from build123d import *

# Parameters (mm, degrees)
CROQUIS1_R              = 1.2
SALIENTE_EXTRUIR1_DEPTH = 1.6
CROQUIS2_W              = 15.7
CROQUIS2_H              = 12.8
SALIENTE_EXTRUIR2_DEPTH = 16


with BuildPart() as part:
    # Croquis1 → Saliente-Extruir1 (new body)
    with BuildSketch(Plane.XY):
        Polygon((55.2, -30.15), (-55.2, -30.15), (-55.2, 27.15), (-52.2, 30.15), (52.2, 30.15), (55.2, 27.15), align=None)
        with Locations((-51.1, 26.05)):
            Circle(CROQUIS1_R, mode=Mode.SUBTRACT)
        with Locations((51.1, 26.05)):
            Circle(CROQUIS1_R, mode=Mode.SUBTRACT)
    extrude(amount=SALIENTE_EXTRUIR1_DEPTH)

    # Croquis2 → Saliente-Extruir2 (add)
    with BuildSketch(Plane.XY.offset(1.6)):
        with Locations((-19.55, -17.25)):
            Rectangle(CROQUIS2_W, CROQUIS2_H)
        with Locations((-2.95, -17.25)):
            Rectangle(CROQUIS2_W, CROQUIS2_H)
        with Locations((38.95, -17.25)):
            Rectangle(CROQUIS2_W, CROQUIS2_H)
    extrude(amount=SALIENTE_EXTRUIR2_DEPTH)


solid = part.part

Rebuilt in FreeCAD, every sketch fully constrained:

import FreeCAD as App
import Part
import Sketcher

doc = App.newDocument("Part")
params = doc.addObject("Spreadsheet::Sheet", "Params")
for row, (alias, value) in enumerate([
    ("sketch1_diameter", "2.4 mm"),
    ("sketch1_width", "110.4 mm"),
    ("sketch1_width2", "104.4 mm"),
    ("sketch1_height", "57.3 mm"),
    ("pad1_length", "1.6 mm"),
    ("sketch2_width", "15.7 mm"),
    ("sketch2_height", "12.8 mm"),
    ("pad2_length", "16 mm"),
], start=1):
    params.set(f"A{row}", alias)
    params.set(f"B{row}", "=" + value)
    params.setAlias(f"B{row}", alias)

body = doc.addObject("PartDesign::Body", "Body")

# Sketch on XY plane
sketch1 = body.newObject("Sketcher::SketchObject", "Sketch")
sketch1.AttachmentSupport = (doc.getObject("XY_Plane"), [""])
sketch1.MapMode = "FlatFace"
sketch1.addGeometry(Part.LineSegment(App.Vector(-55.2, -30.1, 0), App.Vector(55.2, -30.1, 0)), False)
sketch1.addGeometry(Part.LineSegment(App.Vector(55.2, -30.1, 0), App.Vector(55.2, 27.1, 0)), False)
sketch1.addGeometry(Part.LineSegment(App.Vector(55.2, 27.1, 0), App.Vector(52.2, 30.1, 0)), False)
sketch1.addGeometry(Part.LineSegment(App.Vector(52.2, 30.1, 0), App.Vector(-52.2, 30.1, 0)), False)
sketch1.addGeometry(Part.LineSegment(App.Vector(-52.2, 30.1, 0), App.Vector(-55.2, 27.1, 0)), False)
sketch1.addGeometry(Part.LineSegment(App.Vector(-55.2, 27.1, 0), App.Vector(-55.2, -30.1, 0)), False)
sketch1.addGeometry(Part.Circle(App.Vector(51.1, 26.1, 0), App.Vector(0, 0, 1), 1.2), False)
sketch1.addGeometry(Part.Circle(App.Vector(-51.1, 26.1, 0), App.Vector(0, 0, 1), 1.2), False)
sketch1.addConstraint(Sketcher.Constraint("Coincident", 0, 2, 1, 1))
sketch1.addConstraint(Sketcher.Constraint("Coincident", 1, 2, 2, 1))
sketch1.addConstraint(Sketcher.Constraint("Coincident", 2, 2, 3, 1))
sketch1.addConstraint(Sketcher.Constraint("Coincident", 3, 2, 4, 1))
sketch1.addConstraint(Sketcher.Constraint("Coincident", 4, 2, 5, 1))
sketch1.addConstraint(Sketcher.Constraint("Coincident", 5, 2, 0, 1))
sketch1.addConstraint(Sketcher.Constraint("Horizontal", 0))
sketch1.addConstraint(Sketcher.Constraint("Vertical", 1))
sketch1.addConstraint(Sketcher.Constraint("Horizontal", 3))
sketch1.addConstraint(Sketcher.Constraint("Vertical", 5))
sketch1.addConstraint(Sketcher.Constraint("Equal", 6, 7))
sketch1.addConstraint(Sketcher.Constraint("Symmetric", 6, 3, 7, 3, -2))
sketch1.addConstraint(Sketcher.Constraint("Symmetric", 1, 2, 4, 2, -2))
sketch1.addConstraint(Sketcher.Constraint("Perpendicular", 2, 4))
sketch1.addConstraint(Sketcher.Constraint("Equal", 2, 4))
sketch1.addConstraint(Sketcher.Constraint("Diameter", 6, 2.4))
sketch1.addConstraint(Sketcher.Constraint("DistanceX", 0, 1, 0, 2, 110.4))
sketch1.addConstraint(Sketcher.Constraint("DistanceX", 3, 2, 3, 1, 104.4))
sketch1.addConstraint(Sketcher.Constraint("DistanceY", 1, 1, 1, 2, 57.3))
sketch1.addConstraint(Sketcher.Constraint("DistanceX", -1, 1, 6, 3, 51.1))
sketch1.addConstraint(Sketcher.Constraint("DistanceY", 0, 2, 6, 3, 56.2))
sketch1.addConstraint(Sketcher.Constraint("DistanceY", -1, 1, 6, 3, 26.05))
sketch1.setExpression("Constraints[15]", "Params.sketch1_diameter")
sketch1.setExpression("Constraints[16]", "Params.sketch1_width")
sketch1.setExpression("Constraints[17]", "Params.sketch1_width2")
sketch1.setExpression("Constraints[18]", "Params.sketch1_height")
pad1 = body.newObject("PartDesign::Pad", "Pad")
pad1.Profile = sketch1
pad1.setExpression("Length", "Params.pad1_length")

# Sketch on XY plane
sketch2 = body.newObject("Sketcher::SketchObject", "Sketch001")
sketch2.AttachmentSupport = (doc.getObject("XY_Plane"), [""])
sketch2.MapMode = "FlatFace"
sketch2.AttachmentOffset = App.Placement(App.Vector(0, 0, 1.6), App.Rotation())
sketch2.addGeometry(Part.LineSegment(App.Vector(-27, -11, 0), App.Vector(-27, -24, 0)), False)
sketch2.addGeometry(Part.LineSegment(App.Vector(-27, -24, 0), App.Vector(-12, -24, 0)), False)
sketch2.addGeometry(Part.LineSegment(App.Vector(-12, -24, 0), App.Vector(-12, -11, 0)), False)
sketch2.addGeometry(Part.LineSegment(App.Vector(-12, -11, 0), App.Vector(-27, -11, 0)), False)
sketch2.addGeometry(Part.LineSegment(App.Vector(-11, -11, 0), App.Vector(-11, -24, 0)), False)
sketch2.addGeometry(Part.LineSegment(App.Vector(-11, -24, 0), App.Vector(5, -24, 0)), False)
sketch2.addGeometry(Part.LineSegment(App.Vector(5, -24, 0), App.Vector(5, -11, 0)), False)
sketch2.addGeometry(Part.LineSegment(App.Vector(5, -11, 0), App.Vector(-11, -11, 0)), False)
sketch2.addGeometry(Part.LineSegment(App.Vector(31, -11, 0), App.Vector(31, -24, 0)), False)
sketch2.addGeometry(Part.LineSegment(App.Vector(31, -24, 0), App.Vector(47, -24, 0)), False)
sketch2.addGeometry(Part.LineSegment(App.Vector(47, -24, 0), App.Vector(47, -11, 0)), False)
sketch2.addGeometry(Part.LineSegment(App.Vector(47, -11, 0), App.Vector(31, -11, 0)), False)
sketch2.addConstraint(Sketcher.Constraint("Coincident", 0, 2, 1, 1))
sketch2.addConstraint(Sketcher.Constraint("Coincident", 1, 2, 2, 1))
sketch2.addConstraint(Sketcher.Constraint("Coincident", 2, 2, 3, 1))
sketch2.addConstraint(Sketcher.Constraint("Coincident", 3, 2, 0, 1))
sketch2.addConstraint(Sketcher.Constraint("Coincident", 4, 2, 5, 1))
sketch2.addConstraint(Sketcher.Constraint("Coincident", 5, 2, 6, 1))
sketch2.addConstraint(Sketcher.Constraint("Coincident", 6, 2, 7, 1))
sketch2.addConstraint(Sketcher.Constraint("Coincident", 7, 2, 4, 1))
sketch2.addConstraint(Sketcher.Constraint("Coincident", 8, 2, 9, 1))
sketch2.addConstraint(Sketcher.Constraint("Coincident", 9, 2, 10, 1))
sketch2.addConstraint(Sketcher.Constraint("Coincident", 10, 2, 11, 1))
sketch2.addConstraint(Sketcher.Constraint("Coincident", 11, 2, 8, 1))
sketch2.addConstraint(Sketcher.Constraint("Vertical", 0))
sketch2.addConstraint(Sketcher.Constraint("Horizontal", 1))
sketch2.addConstraint(Sketcher.Constraint("Vertical", 2))
sketch2.addConstraint(Sketcher.Constraint("Horizontal", 3))
sketch2.addConstraint(Sketcher.Constraint("Vertical", 4))
sketch2.addConstraint(Sketcher.Constraint("Horizontal", 5))
sketch2.addConstraint(Sketcher.Constraint("Vertical", 6))
sketch2.addConstraint(Sketcher.Constraint("Horizontal", 7))
sketch2.addConstraint(Sketcher.Constraint("Vertical", 8))
sketch2.addConstraint(Sketcher.Constraint("Horizontal", 9))
sketch2.addConstraint(Sketcher.Constraint("Vertical", 10))
sketch2.addConstraint(Sketcher.Constraint("Horizontal", 11))
sketch2.addConstraint(Sketcher.Constraint("Horizontal", 1, 2, 4, 2))
sketch2.addConstraint(Sketcher.Constraint("Horizontal", 3, 2, 6, 2))
sketch2.addConstraint(Sketcher.Constraint("Horizontal", 5, 2, 8, 2))
sketch2.addConstraint(Sketcher.Constraint("Horizontal", 7, 2, 10, 2))
sketch2.addConstraint(Sketcher.Constraint("Equal", 3, 5))
sketch2.addConstraint(Sketcher.Constraint("Equal", 7, 9))
sketch2.addConstraint(Sketcher.Constraint("DistanceX", 1, 1, 1, 2, 15.7))
sketch2.addConstraint(Sketcher.Constraint("DistanceY", 0, 2, 0, 1, 12.8))
sketch2.addConstraint(Sketcher.Constraint("DistanceX", 0, 2, -1, 1, 27.4))
sketch2.addConstraint(Sketcher.Constraint("DistanceX", 4, 2, -1, 1, 10.8))
sketch2.addConstraint(Sketcher.Constraint("DistanceX", -1, 1, 8, 2, 31.1))
sketch2.addConstraint(Sketcher.Constraint("DistanceY", 0, 2, -1, 1, 23.65))
sketch2.setExpression("Constraints[30]", "Params.sketch2_width")
sketch2.setExpression("Constraints[31]", "Params.sketch2_height")
pad2 = body.newObject("PartDesign::Pad", "Pad001")
pad2.Profile = sketch2
pad2.setExpression("Length", "Params.pad2_length")

doc.recompute()
